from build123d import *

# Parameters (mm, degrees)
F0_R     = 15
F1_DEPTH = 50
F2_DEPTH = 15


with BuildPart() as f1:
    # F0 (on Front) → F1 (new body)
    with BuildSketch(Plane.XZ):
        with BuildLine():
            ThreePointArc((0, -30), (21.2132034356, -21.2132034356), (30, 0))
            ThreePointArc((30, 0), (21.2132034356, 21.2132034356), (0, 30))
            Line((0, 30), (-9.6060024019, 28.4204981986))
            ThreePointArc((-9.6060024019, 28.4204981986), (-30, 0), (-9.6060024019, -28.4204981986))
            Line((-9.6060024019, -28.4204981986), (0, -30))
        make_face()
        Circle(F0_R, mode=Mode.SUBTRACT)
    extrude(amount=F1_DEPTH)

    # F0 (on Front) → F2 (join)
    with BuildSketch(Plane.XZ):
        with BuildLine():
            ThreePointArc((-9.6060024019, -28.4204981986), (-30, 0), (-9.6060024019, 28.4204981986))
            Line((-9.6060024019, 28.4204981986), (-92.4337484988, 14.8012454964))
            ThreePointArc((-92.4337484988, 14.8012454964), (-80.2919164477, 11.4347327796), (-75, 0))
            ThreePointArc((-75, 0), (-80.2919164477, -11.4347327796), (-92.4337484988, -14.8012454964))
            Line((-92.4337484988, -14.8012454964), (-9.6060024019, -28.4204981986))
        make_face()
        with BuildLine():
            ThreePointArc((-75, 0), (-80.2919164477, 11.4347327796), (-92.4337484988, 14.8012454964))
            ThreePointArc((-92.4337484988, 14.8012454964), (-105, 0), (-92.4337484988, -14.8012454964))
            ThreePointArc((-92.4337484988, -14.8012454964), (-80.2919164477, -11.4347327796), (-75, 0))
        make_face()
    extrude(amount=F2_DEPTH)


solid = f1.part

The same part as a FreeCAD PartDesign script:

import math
import FreeCAD as App
import Part
import Sketcher

V = App.Vector
Q = App.Units.Quantity

doc = App.newDocument("Part")
params = doc.addObject("Spreadsheet::Sheet", "Params")
for row, (alias, value) in enumerate([
    ("sketch1_diameter", "30 mm"),
    ("sketch1_radius", "30 mm"),
    ("pad1_length", "50 mm"),
    ("sketch2_radius", "30 mm"),
    ("sketch2_radius2", "15 mm"),
    ("pad2_length", "15 mm"),
], start=1):
    params.set(f"A{row}", alias)
    params.set(f"B{row}", "=" + value)
    params.setAlias(f"B{row}", alias)

body = doc.addObject("PartDesign::Body", "Body")

# Sketch on XZ plane
sketch1 = body.newObject("Sketcher::SketchObject", "Sketch")
sketch1.AttachmentSupport = (doc.getObject("XZ_Plane"), [""])
sketch1.MapMode = "FlatFace"
sketch1.addGeometry([
    Part.ArcOfCircle(Part.Circle(V(0, 0, 0), V(0, 0, 1), 30), math.radians(-90), math.radians(90)),  # 0
    Part.LineSegment(V(0, 30, 0), V(-10, 28, 0)),  # 1
    Part.ArcOfCircle(Part.Circle(V(0, 0, 0), V(0, 0, 1), 30), math.radians(109), math.radians(251)),  # 2
    Part.LineSegment(V(-10, -28, 0), V(0, -30, 0)),  # 3
    Part.Circle(V(0, 0, 0), V(0, 0, 1), 15),  # 4
], False)
sketch1.addConstraint([
    Sketcher.Constraint("Coincident", 0, 2, 1, 1),
    Sketcher.Constraint("Coincident", 1, 2, 2, 1),
    Sketcher.Constraint("Coincident", 2, 2, 3, 1),
    Sketcher.Constraint("Coincident", 3, 2, 0, 1),
    Sketcher.Constraint("Coincident", 0, 3, -1, 1),
    Sketcher.Constraint("Coincident", 2, 3, -1, 1),
    Sketcher.Constraint("Coincident", 4, 3, -1, 1),
    Sketcher.Constraint("Equal", 0, 2),
    Sketcher.Constraint("PointOnObject", 0, 2, -2),
    Sketcher.Constraint("PointOnObject", 3, 2, -2),
    Sketcher.Constraint("Vertical", 1, 2, 2, 2),
    Sketcher.Constraint("Diameter", 4, Q("30 mm")),
    Sketcher.Constraint("Radius", 0, Q("30 mm")),
    Sketcher.Constraint("DistanceY", -1, 1, 1, 2, Q("28.420498 mm")),
])
sketch1.setExpression("Constraints[11]", "Params.sketch1_diameter")
sketch1.setExpression("Constraints[12]", "Params.sketch1_radius")
pad1 = body.newObject("PartDesign::Pad", "Pad")
pad1.Profile = sketch1
pad1.setExpression("Length", "Params.pad1_length")

# Sketch on XZ plane
sketch2 = body.newObject("Sketcher::SketchObject", "Sketch001")
sketch2.AttachmentSupport = (doc.getObject("XZ_Plane"), [""])
sketch2.MapMode = "FlatFace"
sketch2.addGeometry([
    Part.ArcOfCircle(Part.Circle(V(0, 0, 0), V(0, 0, 1), 30), math.radians(109), math.radians(251)),
    Part.LineSegment(V(-10, 28, 0), V(-92, 15, 0)),
    Part.ArcOfCircle(Part.Circle(V(-90, 0, 0), V(0, 0, 1), 15), math.radians(99), math.radians(261)),
    Part.LineSegment(V(-92, -15, 0), V(-10, -28, 0)),
], False)
sketch2.addConstraint([
    Sketcher.Constraint("Coincident", 0, 1, 1, 1),
    Sketcher.Constraint("Tangent", 1, 2, 2, 1),
    Sketcher.Constraint("Tangent", 2, 2, 3, 1),
    Sketcher.Constraint("Coincident", 3, 2, 0, 2),
    Sketcher.Constraint("Coincident", 0, 3, -1, 1),
    Sketcher.Constraint("Symmetric", 1, 2, 2, 2, -1),
    Sketcher.Constraint("Radius", 0, Q("30 mm")),
    Sketcher.Constraint("Radius", 2, Q("15 mm")),
    Sketcher.Constraint("DistanceX", 2, 3, -1, 1, Q("90 mm")),
    Sketcher.Constraint("DistanceY", -1, 1, 0, 1, Q("28.420498 mm")),
])
sketch2.setExpression("Constraints[6]", "Params.sketch2_radius")
sketch2.setExpression("Constraints[7]", "Params.sketch2_radius2")
pad2 = body.newObject("PartDesign::Pad", "Pad001")
pad2.Profile = sketch2
pad2.setExpression("Length", "Params.pad2_length")

doc.recompute()
